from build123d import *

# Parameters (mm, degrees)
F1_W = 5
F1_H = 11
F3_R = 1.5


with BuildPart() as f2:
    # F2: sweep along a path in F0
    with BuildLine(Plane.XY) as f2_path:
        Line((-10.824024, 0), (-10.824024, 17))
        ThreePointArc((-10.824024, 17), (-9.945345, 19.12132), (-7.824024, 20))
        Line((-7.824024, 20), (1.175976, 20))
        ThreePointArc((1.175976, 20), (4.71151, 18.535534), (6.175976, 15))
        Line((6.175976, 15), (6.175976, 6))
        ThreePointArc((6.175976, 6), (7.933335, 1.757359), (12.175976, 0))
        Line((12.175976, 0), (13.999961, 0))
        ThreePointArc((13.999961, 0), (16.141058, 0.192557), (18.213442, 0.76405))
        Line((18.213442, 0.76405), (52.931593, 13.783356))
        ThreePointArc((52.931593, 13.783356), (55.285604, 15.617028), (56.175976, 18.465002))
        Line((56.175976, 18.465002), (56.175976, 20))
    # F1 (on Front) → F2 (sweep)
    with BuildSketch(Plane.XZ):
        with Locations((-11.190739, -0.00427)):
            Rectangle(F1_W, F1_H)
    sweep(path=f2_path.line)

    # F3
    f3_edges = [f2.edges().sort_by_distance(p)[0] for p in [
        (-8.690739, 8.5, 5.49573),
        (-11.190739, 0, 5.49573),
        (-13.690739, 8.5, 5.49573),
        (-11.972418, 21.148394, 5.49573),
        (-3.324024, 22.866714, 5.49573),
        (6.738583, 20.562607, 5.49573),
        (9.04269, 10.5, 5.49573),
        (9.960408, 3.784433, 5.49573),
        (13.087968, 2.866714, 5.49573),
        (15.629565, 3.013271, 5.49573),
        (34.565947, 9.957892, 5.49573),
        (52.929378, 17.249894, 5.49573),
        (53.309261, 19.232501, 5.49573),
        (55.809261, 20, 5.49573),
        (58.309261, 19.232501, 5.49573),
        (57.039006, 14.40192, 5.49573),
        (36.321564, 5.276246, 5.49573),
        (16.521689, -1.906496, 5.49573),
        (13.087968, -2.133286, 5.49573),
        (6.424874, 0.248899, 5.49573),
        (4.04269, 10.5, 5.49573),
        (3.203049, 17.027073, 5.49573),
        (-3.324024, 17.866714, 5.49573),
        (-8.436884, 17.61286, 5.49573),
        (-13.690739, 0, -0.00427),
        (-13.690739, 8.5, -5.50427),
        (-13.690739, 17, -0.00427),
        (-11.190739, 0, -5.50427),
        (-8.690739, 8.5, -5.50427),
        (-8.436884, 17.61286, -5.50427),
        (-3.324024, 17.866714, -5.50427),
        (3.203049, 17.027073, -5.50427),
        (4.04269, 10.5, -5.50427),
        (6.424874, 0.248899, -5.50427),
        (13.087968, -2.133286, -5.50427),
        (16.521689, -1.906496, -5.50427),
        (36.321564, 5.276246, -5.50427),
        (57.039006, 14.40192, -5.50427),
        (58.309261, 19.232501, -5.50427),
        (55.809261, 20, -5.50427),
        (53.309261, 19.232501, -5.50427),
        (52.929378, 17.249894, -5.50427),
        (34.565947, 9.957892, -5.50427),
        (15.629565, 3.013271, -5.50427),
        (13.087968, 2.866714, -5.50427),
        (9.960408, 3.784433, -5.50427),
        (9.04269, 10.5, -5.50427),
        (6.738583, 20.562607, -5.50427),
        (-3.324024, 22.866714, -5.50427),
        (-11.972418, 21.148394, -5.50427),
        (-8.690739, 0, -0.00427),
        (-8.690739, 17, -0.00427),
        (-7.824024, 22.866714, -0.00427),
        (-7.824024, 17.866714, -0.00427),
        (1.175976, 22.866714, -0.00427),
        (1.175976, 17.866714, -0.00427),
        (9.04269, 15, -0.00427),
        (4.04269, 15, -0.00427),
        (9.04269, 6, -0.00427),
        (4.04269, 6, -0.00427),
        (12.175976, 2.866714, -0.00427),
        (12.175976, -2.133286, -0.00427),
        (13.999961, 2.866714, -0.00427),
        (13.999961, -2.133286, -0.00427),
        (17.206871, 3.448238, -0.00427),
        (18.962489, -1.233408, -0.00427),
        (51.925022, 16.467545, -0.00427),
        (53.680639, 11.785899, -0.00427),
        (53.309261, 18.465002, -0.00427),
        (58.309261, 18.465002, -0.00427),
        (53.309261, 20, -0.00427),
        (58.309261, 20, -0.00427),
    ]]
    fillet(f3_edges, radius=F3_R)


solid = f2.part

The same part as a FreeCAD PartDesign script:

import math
import FreeCAD as App
import Part
import Sketcher
from FreeCAD import Vector

doc = App.newDocument("Part")
params = doc.addObject("Spreadsheet::Sheet", "Params")
for row, (alias, value) in enumerate([
    ("sketch1_width", "5 mm"),
    ("sketch1_height", "11 mm"),
    ("sketch2_radius", "2.999999 mm"),
    ("sketch2_radius2", "5 mm"),
    ("sketch2_radius3", "5.999999 mm"),
    ("sketch2_width", "9 mm"),
    ("fillet_radius", "1.5 mm"),
], start=1):
    params.set(f"A{row}", alias)
    params.set(f"B{row}", "=" + value)
    params.setAlias(f"B{row}", alias)

body = doc.addObject("PartDesign::Body", "Body")

# Sketch on XZ plane
sketch1 = body.newObject("Sketcher::SketchObject", "Sketch")
sketch1.AttachmentSupport = (doc.getObject("XZ_Plane"), [""])
sketch1.MapMode = "FlatFace"
sketch1.addGeometry([
    Part.LineSegment(Vector(-14, 5, 0), Vector(-14, -6, 0)),
    Part.LineSegment(Vector(-14, -6, 0), Vector(-9, -6, 0)),
    Part.LineSegment(Vector(-9, -6, 0), Vector(-9, 5, 0)),
    Part.LineSegment(Vector(-9, 5, 0), Vector(-14, 5, 0)),
], False)
sketch1.addConstraint([
    Sketcher.Constraint("Coincident", 0, 2, 1, 1),
    Sketcher.Constraint("Coincident", 1, 2, 2, 1),
    Sketcher.Constraint("Coincident", 2, 2, 3, 1),
    Sketcher.Constraint("Coincident", 3, 2, 0, 1),
    Sketcher.Constraint("Vertical", 0),
    Sketcher.Constraint("Horizontal", 1),
    Sketcher.Constraint("Vertical", 2),
    Sketcher.Constraint("Horizontal", 3),
    Sketcher.Constraint("DistanceX", 1, 1, 1, 2, 5.0),
    Sketcher.Constraint("DistanceY", 0, 2, 0, 1, 11.0),
    Sketcher.Constraint("DistanceX", 0, 2, -1, 1, 13.690739),
    Sketcher.Constraint("DistanceY", 0, 2, -1, 1, 5.50427),
])
sketch1.setExpression("Constraints[8]", "Params.sketch1_width")
sketch1.setExpression("Constraints[9]", "Params.sketch1_height")

# Sketch on XY plane
sketch2 = body.newObject("Sketcher::SketchObject", "Sketch001")
sketch2.AttachmentSupport = (doc.getObject("XY_Plane"), [""])
sketch2.MapMode = "FlatFace"
sketch2.addGeometry([
    Part.LineSegment(Vector(-10.8, 0, 0), Vector(-10.8, 17, 0)),  # 0
    Part.ArcOfCircle(Part.Circle(Vector(-7.8, 17, 0), Vector(0, 0, 1), 3), math.radians(90), math.radians(180)),  # 1
    Part.LineSegment(Vector(-7.8, 20, 0), Vector(1.2, 20, 0)),  # 2
    Part.ArcOfCircle(Part.Circle(Vector(1.2, 15, 0), Vector(0, 0, 1), 5), math.radians(0), math.radians(90)),  # 3
    Part.LineSegment(Vector(6.2, 15, 0), Vector(6.2, 6, 0)),  # 4
    Part.ArcOfCircle(Part.Circle(Vector(12.2, 6, 0), Vector(0, 0, 1), 6), math.radians(180), math.radians(270)),  # 5
    Part.LineSegment(Vector(12.2, 0, 0), Vector(14, 0, 0)),  # 6
    Part.ArcOfCircle(Part.Circle(Vector(14, 12, 0), Vector(0, 0, 1), 12), math.radians(-90), math.radians(-69)),  # 7
    Part.LineSegment(Vector(18.2, 0.8, 0), Vector(52.9, 13.8, 0)),  # 8
    Part.ArcOfCircle(Part.Circle(Vector(51.2, 18.5, 0), Vector(0, 0, 1), 5), math.radians(-69), math.radians(0)),  # 9
    Part.LineSegment(Vector(56.2, 18.5, 0), Vector(56.2, 20, 0)),  # 10
], False)
sketch2.addConstraint([
    Sketcher.Constraint("Tangent", 0, 2, 1, 2),
    Sketcher.Constraint("Tangent", 1, 1, 2, 1),
    Sketcher.Constraint("Tangent", 2, 2, 3, 2),
    Sketcher.Constraint("Tangent", 3, 1, 4, 1),
    Sketcher.Constraint("Tangent", 4, 2, 5, 1),
    Sketcher.Constraint("Tangent", 5, 2, 6, 1),
    Sketcher.Constraint("Tangent", 6, 2, 7, 1),
    Sketcher.Constraint("Tangent", 7, 2, 8, 1),
    Sketcher.Constraint("Tangent", 8, 2, 9, 1),
    Sketcher.Constraint("Tangent", 9, 2, 10, 1),
    Sketcher.Constraint("Vertical", 0),
    Sketcher.Constraint("Horizontal", 2),
    Sketcher.Constraint("Vertical", 4),
    Sketcher.Constraint("Horizontal", 6),
    Sketcher.Constraint("Vertical", 10),
    Sketcher.Constraint("Equal", 3, 9),
    Sketcher.Constraint("PointOnObject", 0, 1, -1),
    Sketcher.Constraint("PointOnObject", 5, 2, -1),
    Sketcher.Constraint("Horizontal", 2, 2, 10, 2),
    Sketcher.Constraint("Equal", 2, 4),
    Sketcher.Constraint("Radius", 1, 2.999999),
    Sketcher.Constraint("Radius", 3, 5.0),
    Sketcher.Constraint("Radius", 5, 5.999999),
    Sketcher.Constraint("DistanceX", 2, 1, 2, 2, 9.0),
    Sketcher.Constraint("DistanceX", 5, 3, 9, 3, 39.0),
    Sketcher.Constraint("DistanceY", 10, 1, 10, 2, 1.534998),
    Sketcher.Constraint("Distance", 8, 37.079001),
    Sketcher.Constraint("Radius", 7, 11.999976),
    Sketcher.Constraint("DistanceX", -1, 1, 6, 2, 13.999961),
])
sketch2.setExpression("Constraints[20]", "Params.sketch2_radius")
sketch2.setExpression("Constraints[21]", "Params.sketch2_radius2")
sketch2.setExpression("Constraints[22]", "Params.sketch2_radius3")
sketch2.setExpression("Constraints[23]", "Params.sketch2_width")
doc.recompute()

additivepipe = body.newObject("PartDesign::AdditivePipe", "AdditivePipe")
additivepipe.Profile = sketch1
additivepipe.Spine = (sketch2, ["Edge1", "Edge2", "Edge3", "Edge4", "Edge5", "Edge6", "Edge7", "Edge8", "Edge9", "Edge10", "Edge11"])
doc.recompute()

fillet = body.newObject("PartDesign::Fillet", "Fillet")
fillet.Base = (additivepipe, ["Edge1"])
fillet.UseAllEdges = True
fillet.setExpression("Radius", "Params.fillet_radius")

doc.recompute()
